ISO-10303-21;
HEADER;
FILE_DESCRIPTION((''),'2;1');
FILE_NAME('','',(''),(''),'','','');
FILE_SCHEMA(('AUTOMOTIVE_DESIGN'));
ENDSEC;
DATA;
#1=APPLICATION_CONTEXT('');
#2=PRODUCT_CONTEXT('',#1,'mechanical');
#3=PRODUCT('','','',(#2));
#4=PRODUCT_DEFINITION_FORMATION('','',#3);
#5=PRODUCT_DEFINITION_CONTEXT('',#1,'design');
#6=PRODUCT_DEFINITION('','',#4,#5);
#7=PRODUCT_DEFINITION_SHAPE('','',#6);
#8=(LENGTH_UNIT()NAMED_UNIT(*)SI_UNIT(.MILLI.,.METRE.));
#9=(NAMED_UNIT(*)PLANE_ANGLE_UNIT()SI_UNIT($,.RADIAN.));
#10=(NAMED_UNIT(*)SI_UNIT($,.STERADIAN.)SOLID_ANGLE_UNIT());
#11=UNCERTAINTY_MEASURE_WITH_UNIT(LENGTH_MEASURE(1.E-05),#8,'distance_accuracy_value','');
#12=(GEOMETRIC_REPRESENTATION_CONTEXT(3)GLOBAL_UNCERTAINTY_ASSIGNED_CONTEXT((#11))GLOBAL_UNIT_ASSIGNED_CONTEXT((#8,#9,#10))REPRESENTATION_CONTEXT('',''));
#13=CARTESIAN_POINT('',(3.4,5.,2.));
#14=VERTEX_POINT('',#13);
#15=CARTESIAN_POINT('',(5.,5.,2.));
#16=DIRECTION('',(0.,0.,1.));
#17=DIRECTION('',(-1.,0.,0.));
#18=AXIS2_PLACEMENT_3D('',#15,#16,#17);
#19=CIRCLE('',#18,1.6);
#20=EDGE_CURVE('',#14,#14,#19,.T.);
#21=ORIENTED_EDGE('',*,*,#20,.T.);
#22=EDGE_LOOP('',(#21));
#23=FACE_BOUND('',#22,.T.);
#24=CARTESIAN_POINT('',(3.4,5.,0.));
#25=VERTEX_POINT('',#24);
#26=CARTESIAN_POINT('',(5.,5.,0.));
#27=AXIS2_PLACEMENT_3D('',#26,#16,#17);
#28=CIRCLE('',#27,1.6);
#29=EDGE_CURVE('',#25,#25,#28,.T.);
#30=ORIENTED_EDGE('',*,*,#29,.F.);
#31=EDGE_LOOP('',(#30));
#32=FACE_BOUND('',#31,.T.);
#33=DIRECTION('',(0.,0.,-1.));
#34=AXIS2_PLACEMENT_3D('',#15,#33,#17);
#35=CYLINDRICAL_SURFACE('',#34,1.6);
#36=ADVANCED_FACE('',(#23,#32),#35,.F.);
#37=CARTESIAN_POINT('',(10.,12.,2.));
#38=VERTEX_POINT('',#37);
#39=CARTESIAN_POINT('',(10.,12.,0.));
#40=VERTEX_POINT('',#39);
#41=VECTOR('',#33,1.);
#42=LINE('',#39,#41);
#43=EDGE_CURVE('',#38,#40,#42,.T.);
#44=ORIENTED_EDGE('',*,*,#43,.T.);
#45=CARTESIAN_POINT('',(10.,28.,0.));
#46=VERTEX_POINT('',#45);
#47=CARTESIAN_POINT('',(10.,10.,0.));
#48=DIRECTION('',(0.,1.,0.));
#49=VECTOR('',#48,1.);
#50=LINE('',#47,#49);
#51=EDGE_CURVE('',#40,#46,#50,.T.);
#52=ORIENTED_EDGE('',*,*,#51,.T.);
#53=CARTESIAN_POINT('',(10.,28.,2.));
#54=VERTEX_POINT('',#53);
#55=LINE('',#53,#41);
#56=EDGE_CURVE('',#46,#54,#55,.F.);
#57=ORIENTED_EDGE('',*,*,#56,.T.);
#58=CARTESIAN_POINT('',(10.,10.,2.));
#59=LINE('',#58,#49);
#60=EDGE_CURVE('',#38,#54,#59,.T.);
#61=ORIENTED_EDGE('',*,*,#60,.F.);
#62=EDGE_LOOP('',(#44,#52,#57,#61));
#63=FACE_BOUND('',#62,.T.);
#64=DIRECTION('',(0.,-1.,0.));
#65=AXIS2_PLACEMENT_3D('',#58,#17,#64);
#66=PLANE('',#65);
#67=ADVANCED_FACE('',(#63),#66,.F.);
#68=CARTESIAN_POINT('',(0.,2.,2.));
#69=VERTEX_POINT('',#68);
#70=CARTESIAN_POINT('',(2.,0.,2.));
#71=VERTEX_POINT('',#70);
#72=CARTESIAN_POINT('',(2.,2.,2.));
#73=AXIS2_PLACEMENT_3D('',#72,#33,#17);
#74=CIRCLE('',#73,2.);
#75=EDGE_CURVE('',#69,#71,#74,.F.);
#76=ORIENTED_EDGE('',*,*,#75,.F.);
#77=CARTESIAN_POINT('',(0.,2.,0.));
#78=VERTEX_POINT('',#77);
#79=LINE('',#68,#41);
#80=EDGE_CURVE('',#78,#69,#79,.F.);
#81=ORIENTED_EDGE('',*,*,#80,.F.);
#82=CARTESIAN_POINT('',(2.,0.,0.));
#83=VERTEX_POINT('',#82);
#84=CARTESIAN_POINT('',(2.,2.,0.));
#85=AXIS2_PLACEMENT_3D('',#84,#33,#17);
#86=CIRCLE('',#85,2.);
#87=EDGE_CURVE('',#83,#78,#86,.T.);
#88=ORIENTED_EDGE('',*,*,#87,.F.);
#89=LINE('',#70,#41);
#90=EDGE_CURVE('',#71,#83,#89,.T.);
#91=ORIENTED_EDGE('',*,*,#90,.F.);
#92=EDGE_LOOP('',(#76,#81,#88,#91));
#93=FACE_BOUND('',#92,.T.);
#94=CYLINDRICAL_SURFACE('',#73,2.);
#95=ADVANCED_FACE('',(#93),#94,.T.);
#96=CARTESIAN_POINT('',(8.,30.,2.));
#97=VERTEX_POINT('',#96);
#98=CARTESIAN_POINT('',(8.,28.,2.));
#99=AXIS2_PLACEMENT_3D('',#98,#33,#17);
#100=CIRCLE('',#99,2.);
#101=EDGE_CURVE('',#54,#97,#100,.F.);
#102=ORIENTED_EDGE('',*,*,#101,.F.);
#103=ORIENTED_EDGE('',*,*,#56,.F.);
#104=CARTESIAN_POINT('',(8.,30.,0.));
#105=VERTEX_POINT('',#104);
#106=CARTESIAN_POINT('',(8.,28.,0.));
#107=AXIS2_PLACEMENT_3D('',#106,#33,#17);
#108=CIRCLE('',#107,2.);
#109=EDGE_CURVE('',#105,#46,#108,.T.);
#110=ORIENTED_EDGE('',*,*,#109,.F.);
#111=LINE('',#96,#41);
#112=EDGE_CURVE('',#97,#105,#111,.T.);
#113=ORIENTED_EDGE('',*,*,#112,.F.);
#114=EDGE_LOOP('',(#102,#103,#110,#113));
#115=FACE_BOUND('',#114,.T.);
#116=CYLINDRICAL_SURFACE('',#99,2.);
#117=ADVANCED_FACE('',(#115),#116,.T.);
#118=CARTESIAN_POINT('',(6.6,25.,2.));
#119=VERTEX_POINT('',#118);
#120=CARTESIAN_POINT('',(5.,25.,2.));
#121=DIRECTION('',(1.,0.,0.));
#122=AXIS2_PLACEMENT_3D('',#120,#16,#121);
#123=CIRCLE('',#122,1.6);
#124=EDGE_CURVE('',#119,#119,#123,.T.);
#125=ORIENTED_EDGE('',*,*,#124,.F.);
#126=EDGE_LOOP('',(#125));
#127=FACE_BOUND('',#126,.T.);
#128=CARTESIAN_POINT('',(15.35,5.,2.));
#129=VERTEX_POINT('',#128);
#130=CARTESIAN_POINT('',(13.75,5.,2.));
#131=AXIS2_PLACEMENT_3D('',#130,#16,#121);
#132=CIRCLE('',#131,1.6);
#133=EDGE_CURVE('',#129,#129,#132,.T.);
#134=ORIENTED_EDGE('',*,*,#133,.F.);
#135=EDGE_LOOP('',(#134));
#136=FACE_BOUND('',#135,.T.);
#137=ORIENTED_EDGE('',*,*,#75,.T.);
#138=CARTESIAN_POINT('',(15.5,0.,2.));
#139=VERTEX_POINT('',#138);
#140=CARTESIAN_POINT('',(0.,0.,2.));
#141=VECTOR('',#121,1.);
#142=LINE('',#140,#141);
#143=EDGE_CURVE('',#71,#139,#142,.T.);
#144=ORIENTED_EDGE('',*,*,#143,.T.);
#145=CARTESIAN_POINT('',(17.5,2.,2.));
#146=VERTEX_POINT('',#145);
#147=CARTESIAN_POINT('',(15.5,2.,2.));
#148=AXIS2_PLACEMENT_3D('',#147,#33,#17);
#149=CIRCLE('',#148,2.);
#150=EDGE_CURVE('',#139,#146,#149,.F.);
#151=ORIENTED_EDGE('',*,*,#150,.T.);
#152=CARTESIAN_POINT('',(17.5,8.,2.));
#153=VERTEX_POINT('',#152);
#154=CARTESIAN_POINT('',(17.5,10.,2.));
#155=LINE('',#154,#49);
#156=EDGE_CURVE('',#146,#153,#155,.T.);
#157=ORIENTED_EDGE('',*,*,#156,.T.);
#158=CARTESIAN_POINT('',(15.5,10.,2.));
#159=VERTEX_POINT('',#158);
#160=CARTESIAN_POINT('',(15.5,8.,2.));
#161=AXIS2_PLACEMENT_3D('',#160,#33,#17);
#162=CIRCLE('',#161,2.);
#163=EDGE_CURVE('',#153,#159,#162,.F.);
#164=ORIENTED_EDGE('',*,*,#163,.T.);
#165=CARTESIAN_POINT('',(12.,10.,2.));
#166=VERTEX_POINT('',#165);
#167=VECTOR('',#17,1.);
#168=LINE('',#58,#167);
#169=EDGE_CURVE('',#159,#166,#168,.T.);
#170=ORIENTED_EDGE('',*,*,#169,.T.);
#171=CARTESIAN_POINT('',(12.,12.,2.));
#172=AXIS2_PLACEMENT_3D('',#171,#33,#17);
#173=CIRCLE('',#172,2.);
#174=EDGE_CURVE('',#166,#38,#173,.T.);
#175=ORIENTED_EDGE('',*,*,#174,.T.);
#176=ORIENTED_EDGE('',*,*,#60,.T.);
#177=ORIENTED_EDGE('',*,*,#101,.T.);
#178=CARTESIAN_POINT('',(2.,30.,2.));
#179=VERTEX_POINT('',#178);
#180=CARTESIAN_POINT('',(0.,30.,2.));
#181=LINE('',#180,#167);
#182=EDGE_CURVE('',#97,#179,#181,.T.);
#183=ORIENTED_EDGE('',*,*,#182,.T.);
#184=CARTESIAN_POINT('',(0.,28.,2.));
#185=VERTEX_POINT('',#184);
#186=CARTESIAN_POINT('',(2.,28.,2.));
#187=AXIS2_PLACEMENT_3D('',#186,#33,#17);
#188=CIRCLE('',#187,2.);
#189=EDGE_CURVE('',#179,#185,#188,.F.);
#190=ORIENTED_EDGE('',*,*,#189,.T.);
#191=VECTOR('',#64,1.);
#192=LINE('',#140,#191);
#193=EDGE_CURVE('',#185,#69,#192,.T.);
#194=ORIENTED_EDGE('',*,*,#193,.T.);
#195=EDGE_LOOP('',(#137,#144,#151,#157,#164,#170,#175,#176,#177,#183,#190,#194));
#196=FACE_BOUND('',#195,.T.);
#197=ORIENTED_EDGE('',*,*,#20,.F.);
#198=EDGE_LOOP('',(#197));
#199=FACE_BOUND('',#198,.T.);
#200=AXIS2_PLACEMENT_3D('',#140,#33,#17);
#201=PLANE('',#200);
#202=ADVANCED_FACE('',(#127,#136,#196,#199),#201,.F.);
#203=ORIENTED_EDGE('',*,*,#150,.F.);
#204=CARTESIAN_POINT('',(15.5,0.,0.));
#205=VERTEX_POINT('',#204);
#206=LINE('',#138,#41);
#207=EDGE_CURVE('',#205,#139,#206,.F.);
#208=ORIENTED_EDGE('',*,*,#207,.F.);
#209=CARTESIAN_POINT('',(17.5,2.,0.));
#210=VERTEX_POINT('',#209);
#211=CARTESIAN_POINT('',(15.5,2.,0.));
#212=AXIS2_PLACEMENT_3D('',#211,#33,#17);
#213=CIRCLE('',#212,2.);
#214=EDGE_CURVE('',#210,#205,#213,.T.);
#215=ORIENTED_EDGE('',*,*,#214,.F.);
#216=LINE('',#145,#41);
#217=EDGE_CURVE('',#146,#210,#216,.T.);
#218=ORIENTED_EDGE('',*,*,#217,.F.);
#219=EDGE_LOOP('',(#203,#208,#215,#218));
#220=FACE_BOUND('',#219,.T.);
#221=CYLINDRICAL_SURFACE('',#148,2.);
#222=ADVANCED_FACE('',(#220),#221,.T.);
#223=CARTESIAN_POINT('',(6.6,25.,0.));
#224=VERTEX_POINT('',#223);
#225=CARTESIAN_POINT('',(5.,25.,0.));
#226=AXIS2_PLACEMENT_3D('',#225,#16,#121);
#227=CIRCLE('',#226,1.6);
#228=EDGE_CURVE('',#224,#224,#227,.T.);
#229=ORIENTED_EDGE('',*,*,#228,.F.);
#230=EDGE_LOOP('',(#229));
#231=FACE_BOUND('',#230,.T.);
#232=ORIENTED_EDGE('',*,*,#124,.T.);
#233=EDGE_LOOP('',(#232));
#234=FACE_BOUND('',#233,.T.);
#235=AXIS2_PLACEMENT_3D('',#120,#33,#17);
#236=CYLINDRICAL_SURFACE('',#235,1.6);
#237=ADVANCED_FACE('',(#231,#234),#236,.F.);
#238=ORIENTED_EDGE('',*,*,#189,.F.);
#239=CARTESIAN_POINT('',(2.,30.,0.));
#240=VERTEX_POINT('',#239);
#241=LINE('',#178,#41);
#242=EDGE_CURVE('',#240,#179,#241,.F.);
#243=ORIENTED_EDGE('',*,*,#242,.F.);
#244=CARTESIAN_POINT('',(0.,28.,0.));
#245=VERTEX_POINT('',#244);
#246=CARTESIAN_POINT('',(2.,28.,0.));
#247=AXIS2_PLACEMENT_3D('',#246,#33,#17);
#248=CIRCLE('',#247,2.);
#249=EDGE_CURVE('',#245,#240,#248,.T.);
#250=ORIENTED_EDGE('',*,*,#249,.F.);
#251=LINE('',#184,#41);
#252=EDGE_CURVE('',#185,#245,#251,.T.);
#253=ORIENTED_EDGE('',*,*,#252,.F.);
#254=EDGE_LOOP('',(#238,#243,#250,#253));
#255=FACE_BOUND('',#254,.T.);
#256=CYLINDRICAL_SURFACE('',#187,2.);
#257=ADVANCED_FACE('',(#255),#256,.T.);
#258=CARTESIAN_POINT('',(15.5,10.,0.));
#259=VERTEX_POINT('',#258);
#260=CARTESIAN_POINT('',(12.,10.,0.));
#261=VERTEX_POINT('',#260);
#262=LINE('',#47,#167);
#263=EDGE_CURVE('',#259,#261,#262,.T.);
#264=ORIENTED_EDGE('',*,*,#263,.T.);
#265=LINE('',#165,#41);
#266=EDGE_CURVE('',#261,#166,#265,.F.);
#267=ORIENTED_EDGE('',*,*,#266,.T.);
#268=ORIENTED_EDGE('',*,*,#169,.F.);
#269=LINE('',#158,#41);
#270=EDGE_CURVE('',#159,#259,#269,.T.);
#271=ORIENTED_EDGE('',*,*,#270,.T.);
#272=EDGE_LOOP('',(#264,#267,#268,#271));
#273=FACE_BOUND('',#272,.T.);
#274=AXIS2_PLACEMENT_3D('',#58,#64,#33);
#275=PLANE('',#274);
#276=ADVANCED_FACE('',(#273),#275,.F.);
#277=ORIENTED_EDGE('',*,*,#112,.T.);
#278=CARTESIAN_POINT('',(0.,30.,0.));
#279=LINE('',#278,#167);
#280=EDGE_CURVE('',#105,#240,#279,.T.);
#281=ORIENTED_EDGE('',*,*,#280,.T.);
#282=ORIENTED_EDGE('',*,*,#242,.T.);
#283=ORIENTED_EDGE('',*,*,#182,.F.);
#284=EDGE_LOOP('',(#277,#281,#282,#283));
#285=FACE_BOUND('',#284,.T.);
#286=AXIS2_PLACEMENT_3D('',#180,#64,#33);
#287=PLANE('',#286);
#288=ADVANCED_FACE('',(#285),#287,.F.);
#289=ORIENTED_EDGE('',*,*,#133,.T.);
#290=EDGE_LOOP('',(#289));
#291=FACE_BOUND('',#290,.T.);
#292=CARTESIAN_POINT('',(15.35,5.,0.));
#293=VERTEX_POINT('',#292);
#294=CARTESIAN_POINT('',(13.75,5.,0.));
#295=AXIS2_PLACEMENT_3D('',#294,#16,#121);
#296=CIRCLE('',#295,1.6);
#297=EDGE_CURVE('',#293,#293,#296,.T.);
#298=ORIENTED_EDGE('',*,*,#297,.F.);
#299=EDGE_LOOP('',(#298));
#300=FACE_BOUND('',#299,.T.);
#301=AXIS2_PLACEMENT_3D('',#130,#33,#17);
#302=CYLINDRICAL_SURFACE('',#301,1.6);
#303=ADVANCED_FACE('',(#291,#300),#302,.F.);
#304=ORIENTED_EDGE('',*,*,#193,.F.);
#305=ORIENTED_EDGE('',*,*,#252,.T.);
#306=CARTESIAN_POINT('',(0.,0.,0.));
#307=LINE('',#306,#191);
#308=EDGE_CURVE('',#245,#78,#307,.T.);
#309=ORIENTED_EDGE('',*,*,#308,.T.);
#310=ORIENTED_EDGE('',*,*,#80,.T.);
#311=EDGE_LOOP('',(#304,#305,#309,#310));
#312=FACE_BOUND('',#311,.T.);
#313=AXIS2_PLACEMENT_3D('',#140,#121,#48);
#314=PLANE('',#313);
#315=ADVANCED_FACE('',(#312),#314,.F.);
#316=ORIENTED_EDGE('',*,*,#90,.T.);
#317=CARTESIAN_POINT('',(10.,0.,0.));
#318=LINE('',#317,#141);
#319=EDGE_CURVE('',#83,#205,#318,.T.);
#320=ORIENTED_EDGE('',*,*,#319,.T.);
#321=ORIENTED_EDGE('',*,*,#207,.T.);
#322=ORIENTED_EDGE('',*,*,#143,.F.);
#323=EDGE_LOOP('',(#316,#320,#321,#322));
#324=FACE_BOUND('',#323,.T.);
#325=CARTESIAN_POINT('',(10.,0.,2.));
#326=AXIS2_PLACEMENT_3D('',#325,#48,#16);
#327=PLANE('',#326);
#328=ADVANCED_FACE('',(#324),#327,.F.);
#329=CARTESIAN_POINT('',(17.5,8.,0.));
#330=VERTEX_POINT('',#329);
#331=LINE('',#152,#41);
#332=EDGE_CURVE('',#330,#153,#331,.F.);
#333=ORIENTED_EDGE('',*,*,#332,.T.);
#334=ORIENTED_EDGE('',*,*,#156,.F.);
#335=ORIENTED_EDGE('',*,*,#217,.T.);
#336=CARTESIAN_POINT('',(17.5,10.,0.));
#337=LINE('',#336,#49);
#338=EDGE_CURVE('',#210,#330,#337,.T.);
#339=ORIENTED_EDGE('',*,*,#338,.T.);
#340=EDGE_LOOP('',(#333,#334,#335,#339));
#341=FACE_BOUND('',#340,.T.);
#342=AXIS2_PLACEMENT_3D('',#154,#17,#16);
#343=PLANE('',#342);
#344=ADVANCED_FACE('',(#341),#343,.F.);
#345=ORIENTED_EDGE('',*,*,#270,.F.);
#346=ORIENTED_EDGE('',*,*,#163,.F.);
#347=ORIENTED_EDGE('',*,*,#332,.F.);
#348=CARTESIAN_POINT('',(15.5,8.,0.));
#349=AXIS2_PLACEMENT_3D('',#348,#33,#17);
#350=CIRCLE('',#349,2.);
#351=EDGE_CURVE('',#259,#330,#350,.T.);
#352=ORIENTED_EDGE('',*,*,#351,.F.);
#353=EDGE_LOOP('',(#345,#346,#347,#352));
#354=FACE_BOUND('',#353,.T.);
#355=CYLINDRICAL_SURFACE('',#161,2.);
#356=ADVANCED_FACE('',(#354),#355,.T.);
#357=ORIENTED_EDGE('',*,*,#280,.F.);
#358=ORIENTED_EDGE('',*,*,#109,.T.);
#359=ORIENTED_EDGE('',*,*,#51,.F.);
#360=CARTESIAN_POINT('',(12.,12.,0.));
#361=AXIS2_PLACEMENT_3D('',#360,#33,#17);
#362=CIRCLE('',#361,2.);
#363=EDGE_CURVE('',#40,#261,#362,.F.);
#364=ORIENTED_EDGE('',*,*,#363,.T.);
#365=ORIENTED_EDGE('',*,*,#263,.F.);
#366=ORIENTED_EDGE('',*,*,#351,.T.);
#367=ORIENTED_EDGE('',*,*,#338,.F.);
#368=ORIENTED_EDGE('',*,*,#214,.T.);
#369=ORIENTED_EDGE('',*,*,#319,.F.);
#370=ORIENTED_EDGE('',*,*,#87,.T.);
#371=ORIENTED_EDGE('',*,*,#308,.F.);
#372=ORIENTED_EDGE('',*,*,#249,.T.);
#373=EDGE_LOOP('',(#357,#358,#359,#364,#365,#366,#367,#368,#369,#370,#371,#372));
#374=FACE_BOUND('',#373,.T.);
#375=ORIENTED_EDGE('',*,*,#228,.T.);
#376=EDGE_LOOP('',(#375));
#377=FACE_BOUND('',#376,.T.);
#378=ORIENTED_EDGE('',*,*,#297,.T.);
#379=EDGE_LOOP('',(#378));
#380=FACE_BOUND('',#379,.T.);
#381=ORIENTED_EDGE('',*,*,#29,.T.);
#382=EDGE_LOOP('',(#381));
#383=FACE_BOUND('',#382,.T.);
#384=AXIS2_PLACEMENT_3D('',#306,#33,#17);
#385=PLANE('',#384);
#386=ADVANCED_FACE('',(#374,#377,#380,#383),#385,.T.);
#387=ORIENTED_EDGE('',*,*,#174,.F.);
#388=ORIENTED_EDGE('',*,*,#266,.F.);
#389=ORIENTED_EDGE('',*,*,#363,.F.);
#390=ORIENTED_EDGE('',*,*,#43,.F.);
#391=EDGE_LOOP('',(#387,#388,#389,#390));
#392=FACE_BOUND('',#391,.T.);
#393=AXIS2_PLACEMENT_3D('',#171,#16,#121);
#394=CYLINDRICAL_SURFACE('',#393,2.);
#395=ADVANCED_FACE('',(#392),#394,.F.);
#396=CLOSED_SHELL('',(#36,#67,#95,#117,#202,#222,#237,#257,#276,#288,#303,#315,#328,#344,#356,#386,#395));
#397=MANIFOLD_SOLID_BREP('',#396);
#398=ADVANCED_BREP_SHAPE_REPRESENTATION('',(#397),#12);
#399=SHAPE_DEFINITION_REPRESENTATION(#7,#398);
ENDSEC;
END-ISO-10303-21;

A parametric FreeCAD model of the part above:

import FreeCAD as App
import Part
import Sketcher
from FreeCAD import Vector
Q = App.Units.Quantity


def edges_at(feature, points):
    """Names of the edges that pass closest to the given points."""
    edges = feature.Shape.Edges
    near = lambda p: min(range(len(edges)), key=lambda i: edges[i].distToShape(Part.Vertex(*p))[0])
    return sorted({f"Edge{near(p) + 1}" for p in points})

doc = App.newDocument("Part")
body = doc.addObject("PartDesign::Body", "Body")

# Sketch on XY plane
sketch1 = body.newObject("Sketcher::SketchObject", "Sketch")
sketch1.AttachmentSupport = (doc.getObject("XY_Plane"), [""])
sketch1.MapMode = "FlatFace"
sketch1.addGeometry([
    Part.LineSegment(Vector(0, 0, 0), Vector(17.5, 0, 0)),  # 0
    Part.LineSegment(Vector(17.5, 0, 0), Vector(17.5, 10, 0)),  # 1
    Part.LineSegment(Vector(17.5, 10, 0), Vector(10, 10, 0)),  # 2
    Part.LineSegment(Vector(10, 10, 0), Vector(10, 30, 0)),  # 3
    Part.LineSegment(Vector(10, 30, 0), Vector(0, 30, 0)),  # 4
    Part.LineSegment(Vector(0, 30, 0), Vector(0, 0, 0)),  # 5
    Part.Circle(Vector(5, 5, 0), Vector(0, 0, 1), 1.6),  # 6
    Part.Circle(Vector(13.8, 5, 0), Vector(0, 0, 1), 1.6),  # 7
    Part.Circle(Vector(5, 25, 0), Vector(0, 0, 1), 1.6),  # 8
], False)
sketch1.addConstraint([
    Sketcher.Constraint("Coincident", 0, 2, 1, 1),
    Sketcher.Constraint("Coincident", 1, 2, 2, 1),
    Sketcher.Constraint("Coincident", 2, 2, 3, 1),
    Sketcher.Constraint("Coincident", 3, 2, 4, 1),
    Sketcher.Constraint("Coincident", 4, 2, 5, 1),
    Sketcher.Constraint("Coincident", 5, 2, 0, 1),
    Sketcher.Constraint("Horizontal", 0),
    Sketcher.Constraint("Vertical", 1),
    Sketcher.Constraint("Horizontal", 2),
    Sketcher.Constraint("Vertical", 3),
    Sketcher.Constraint("Horizontal", 4),
    Sketcher.Constraint("Vertical", 5),
    Sketcher.Constraint("Coincident", 5, 2, -1, 1),
    Sketcher.Constraint("Equal", 6, 7),
    Sketcher.Constraint("Equal", 7, 8),
    Sketcher.Constraint("Horizontal", 6, 3, 7, 3),
    Sketcher.Constraint("Vertical", 6, 3, 8, 3),
    Sketcher.Constraint("Equal", 4, 1),
    Sketcher.Constraint("Diameter", 6, Q("3.2 mm")),
    Sketcher.Constraint("DistanceX", 4, 2, 4, 1, Q("10 mm")),
    Sketcher.Constraint("DistanceY", 3, 1, 3, 2, Q("20 mm")),
    Sketcher.Constraint("DistanceX", 0, 1, 0, 2, Q("17.5 mm")),
    Sketcher.Constraint("DistanceX", -1, 1, 6, 3, Q("5 mm")),
    Sketcher.Constraint("DistanceY", -1, 1, 6, 3, Q("5 mm")),
    Sketcher.Constraint("DistanceY", -1, 1, 8, 3, Q("25 mm")),
    Sketcher.Constraint("DistanceX", -1, 1, 7, 3, Q("13.75 mm")),
])
pad1 = body.newObject("PartDesign::Pad", "Pad")
pad1.Profile = sketch1
pad1.Length = 2
doc.recompute()

fillet = body.newObject("PartDesign::Fillet", "Fillet")
fillet.Base = (pad1, edges_at(pad1, [
    (0, 30, 1),
    (10, 30, 1),
    (10, 10, 1),
    (17.5, 10, 1),
    (17.5, 0, 1),
    (0, 0, 1),
]))
fillet.Radius = 2

doc.recompute()
